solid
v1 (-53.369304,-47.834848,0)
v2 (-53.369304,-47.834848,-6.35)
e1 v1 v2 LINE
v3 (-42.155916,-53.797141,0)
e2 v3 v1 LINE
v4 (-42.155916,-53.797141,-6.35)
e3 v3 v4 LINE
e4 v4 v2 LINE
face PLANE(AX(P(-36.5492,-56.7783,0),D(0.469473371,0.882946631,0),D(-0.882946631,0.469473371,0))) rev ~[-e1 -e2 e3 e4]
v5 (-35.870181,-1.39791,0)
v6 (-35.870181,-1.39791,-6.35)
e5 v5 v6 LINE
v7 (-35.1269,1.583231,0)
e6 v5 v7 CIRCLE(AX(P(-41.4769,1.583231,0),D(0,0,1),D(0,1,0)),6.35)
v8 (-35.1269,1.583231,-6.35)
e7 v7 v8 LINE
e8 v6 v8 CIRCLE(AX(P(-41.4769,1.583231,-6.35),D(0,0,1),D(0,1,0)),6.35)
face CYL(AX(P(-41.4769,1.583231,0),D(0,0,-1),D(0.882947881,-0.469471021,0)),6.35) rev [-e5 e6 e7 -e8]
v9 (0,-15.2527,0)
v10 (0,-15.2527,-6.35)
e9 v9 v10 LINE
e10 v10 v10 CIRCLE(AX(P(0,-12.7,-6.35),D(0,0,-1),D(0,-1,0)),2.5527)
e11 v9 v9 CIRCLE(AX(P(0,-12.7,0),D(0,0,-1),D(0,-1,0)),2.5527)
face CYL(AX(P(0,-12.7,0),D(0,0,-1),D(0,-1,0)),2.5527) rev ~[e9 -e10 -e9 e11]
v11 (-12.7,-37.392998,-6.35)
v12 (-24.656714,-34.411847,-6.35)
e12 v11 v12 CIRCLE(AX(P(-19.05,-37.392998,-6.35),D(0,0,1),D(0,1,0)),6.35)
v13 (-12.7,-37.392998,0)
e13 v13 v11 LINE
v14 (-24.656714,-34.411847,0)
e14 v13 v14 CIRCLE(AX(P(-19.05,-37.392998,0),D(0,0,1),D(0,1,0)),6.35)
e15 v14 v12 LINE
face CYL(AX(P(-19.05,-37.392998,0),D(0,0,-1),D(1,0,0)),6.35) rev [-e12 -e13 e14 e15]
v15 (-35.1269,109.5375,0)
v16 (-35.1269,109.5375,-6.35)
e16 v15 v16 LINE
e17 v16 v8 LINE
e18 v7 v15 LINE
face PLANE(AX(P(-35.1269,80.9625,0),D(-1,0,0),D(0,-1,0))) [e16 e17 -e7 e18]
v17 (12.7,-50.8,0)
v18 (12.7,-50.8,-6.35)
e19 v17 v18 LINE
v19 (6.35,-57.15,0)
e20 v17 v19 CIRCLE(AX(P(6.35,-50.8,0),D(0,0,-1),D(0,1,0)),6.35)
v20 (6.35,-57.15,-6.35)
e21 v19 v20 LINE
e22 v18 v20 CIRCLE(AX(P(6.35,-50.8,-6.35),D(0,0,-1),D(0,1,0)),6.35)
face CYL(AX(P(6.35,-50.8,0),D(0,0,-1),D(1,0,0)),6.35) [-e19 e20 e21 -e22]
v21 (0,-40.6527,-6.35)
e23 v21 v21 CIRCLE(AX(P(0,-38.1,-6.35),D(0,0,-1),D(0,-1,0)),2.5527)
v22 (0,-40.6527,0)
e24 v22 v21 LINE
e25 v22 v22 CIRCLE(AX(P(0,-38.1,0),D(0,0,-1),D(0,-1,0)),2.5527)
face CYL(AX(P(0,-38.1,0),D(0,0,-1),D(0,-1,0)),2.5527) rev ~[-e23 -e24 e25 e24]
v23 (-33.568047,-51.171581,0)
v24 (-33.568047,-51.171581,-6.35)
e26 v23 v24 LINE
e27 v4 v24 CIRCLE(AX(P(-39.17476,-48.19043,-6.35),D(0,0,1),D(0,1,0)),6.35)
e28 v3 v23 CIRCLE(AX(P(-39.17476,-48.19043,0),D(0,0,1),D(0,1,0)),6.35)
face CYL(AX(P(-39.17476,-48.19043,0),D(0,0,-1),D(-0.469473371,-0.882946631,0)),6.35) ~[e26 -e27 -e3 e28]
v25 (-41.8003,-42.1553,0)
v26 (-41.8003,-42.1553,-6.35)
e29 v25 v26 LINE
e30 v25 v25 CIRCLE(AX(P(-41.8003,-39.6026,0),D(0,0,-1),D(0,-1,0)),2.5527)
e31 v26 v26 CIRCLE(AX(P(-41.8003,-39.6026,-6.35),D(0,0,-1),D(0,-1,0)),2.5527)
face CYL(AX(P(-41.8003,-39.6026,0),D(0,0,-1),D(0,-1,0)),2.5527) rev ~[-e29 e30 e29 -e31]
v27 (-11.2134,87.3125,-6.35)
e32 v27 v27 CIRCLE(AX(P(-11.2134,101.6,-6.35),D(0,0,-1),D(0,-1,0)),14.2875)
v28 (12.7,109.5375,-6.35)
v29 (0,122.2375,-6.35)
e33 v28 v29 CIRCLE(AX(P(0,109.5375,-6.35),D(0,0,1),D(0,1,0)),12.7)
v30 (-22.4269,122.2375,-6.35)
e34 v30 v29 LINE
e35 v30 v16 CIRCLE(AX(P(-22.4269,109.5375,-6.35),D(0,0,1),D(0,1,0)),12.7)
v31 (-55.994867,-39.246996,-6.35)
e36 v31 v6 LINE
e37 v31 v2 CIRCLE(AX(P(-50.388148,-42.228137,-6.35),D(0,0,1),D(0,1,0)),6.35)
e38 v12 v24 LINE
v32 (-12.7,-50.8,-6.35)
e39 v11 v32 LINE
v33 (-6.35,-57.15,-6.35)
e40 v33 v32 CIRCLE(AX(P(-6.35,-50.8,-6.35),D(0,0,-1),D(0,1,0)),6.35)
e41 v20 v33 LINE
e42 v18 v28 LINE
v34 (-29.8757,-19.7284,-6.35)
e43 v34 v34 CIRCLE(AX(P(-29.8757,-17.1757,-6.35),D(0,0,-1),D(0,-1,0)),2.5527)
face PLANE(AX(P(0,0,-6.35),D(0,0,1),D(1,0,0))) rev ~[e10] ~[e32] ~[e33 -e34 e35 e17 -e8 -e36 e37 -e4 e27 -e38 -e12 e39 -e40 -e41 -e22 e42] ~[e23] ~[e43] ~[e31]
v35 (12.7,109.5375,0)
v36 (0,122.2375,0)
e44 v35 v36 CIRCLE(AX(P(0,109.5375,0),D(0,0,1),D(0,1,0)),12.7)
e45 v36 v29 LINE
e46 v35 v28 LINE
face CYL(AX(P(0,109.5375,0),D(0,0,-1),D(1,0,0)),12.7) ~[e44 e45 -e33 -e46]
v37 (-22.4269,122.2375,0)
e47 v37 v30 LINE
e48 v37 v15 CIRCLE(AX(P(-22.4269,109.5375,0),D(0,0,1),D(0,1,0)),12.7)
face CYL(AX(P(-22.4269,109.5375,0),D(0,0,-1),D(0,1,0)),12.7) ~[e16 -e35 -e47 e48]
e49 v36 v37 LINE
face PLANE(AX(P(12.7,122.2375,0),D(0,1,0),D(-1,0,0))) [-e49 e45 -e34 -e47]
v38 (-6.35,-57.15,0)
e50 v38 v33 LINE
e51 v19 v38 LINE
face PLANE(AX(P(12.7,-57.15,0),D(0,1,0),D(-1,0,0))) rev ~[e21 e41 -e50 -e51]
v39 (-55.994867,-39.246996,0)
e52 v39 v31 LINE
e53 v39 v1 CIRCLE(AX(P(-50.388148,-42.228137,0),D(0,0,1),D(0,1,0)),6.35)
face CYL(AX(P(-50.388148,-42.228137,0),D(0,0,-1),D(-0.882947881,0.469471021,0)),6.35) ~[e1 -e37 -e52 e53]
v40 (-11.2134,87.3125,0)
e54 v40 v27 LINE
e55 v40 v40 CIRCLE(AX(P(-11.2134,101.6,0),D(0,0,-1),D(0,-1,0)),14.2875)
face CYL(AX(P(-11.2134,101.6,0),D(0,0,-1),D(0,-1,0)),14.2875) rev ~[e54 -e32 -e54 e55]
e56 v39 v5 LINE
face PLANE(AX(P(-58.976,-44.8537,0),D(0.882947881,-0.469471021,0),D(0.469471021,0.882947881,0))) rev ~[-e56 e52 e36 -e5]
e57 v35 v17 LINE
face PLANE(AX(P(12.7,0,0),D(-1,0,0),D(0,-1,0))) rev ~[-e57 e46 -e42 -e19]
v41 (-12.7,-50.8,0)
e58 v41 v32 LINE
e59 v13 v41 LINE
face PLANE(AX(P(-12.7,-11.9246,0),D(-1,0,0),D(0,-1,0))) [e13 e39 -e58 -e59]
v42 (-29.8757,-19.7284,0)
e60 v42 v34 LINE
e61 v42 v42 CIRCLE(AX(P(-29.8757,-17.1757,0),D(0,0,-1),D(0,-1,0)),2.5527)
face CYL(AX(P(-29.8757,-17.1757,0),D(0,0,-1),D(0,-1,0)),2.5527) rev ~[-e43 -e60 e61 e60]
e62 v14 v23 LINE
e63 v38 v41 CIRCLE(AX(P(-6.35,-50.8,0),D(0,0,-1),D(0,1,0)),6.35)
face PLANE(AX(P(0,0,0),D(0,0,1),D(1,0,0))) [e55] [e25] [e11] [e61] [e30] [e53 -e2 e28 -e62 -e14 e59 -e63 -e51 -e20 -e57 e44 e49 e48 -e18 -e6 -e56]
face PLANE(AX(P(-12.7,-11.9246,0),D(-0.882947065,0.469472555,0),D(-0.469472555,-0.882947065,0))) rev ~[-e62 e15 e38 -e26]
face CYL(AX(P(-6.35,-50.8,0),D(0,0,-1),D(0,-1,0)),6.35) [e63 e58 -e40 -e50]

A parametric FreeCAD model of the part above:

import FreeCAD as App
import Part
import Sketcher
from FreeCAD import Vector
Q = App.Units.Quantity


def edges_at(feature, points):
    """Names of the edges that pass closest to the given points."""
    edges = feature.Shape.Edges
    near = lambda p: min(range(len(edges)), key=lambda i: edges[i].distToShape(Part.Vertex(*p))[0])
    return sorted({f"Edge{near(p) + 1}" for p in points})

doc = App.newDocument("Part")
body = doc.addObject("PartDesign::Body", "Body")

sketch1 = doc.addObject("Sketcher::SketchObject", "Sketch")
body.addObject(sketch1)
sketch1.AttachmentSupport = (doc.XY_Plane, [""])
sketch1.MapMode = "FlatFace"
sketch1.addGeometry([
    Part.LineSegment(Vector(13, -57, 0), Vector(13, 0, 0)),
    Part.LineSegment(Vector(13, 0, 0), Vector(-35, 0, 0)),
    Part.LineSegment(Vector(-35, 0, 0), Vector(-59, -45, 0)),
    Part.LineSegment(Vector(-59, -45, 0), Vector(-37, -57, 0)),
    Part.LineSegment(Vector(-37, -57, 0), Vector(-13, -12, 0)),
    Part.LineSegment(Vector(-13, -12, 0), Vector(-13, -57, 0)),
    Part.LineSegment(Vector(-13, -57, 0), Vector(13, -57, 0)),
], False)
sketch1.addConstraint([
    Sketcher.Constraint("Coincident", 0, 2, 1, 1),
    Sketcher.Constraint("Coincident", 1, 2, 2, 1),
    Sketcher.Constraint("Coincident", 2, 2, 3, 1),
    Sketcher.Constraint("Coincident", 3, 2, 4, 1),
    Sketcher.Constraint("Coincident", 4, 2, 5, 1),
    Sketcher.Constraint("Coincident", 5, 2, 6, 1),
    Sketcher.Constraint("Coincident", 6, 2, 0, 1),
    Sketcher.Constraint("Vertical", 0),
    Sketcher.Constraint("Horizontal", 1),
    Sketcher.Constraint("Vertical", 5),
    Sketcher.Constraint("Horizontal", 6),
    Sketcher.Constraint("PointOnObject", 0, 2, -1),
    Sketcher.Constraint("Perpendicular", 2, 3),
    Sketcher.Constraint("Perpendicular", 3, 4),
    Sketcher.Constraint("Equal", 2, 4),
    Sketcher.Constraint("DistanceX", 6, 1, 6, 2, Q("1 in")),
    Sketcher.Constraint("Distance", 2, Q("2 in")),
    Sketcher.Constraint("Distance", 3, Q("1 in")),
    Sketcher.Constraint("Angle", 3, Q("-28 deg")),
    Sketcher.Constraint("DistanceY", 0, 1, 0, 2, Q("2.25 in")),
    Sketcher.Constraint("DistanceX", -1, 1, 0, 2, Q("0.5 in")),
])
pad1 = doc.addObject("PartDesign::Pad", "Pad")
body.addObject(pad1)
pad1.Profile = sketch1
pad1.Length = Q("0.25 in")
pad1.Reversed = True

sketch2 = doc.addObject("Sketcher::SketchObject", "Sketch001")
body.addObject(sketch2)
sketch2.AttachmentSupport = (doc.XY_Plane, [""])
sketch2.MapMode = "FlatFace"
sketch2.addGeometry([
    Part.Circle(Vector(-29.9, -17.2, 0), Vector(0, 0, 1), 2.6),
    Part.Circle(Vector(-41.8, -39.6, 0), Vector(0, 0, 1), 2.6),
    Part.Circle(Vector(0, -12.7, 0), Vector(0, 0, 1), 2.6),
    Part.Circle(Vector(0, -38.1, 0), Vector(0, 0, 1), 2.6),
], False)
sketch2.addConstraint([
    Sketcher.Constraint("Equal", 0, 1),
    Sketcher.Constraint("Equal", 1, 2),
    Sketcher.Constraint("Equal", 2, 3),
    Sketcher.Constraint("PointOnObject", 2, 3, -2),
    Sketcher.Constraint("PointOnObject", 3, 3, -2),
    Sketcher.Constraint("Diameter", 0, Q("0.201 in")),
    Sketcher.Constraint("DistanceY", 3, 3, 2, 3, Q("1 in")),
    Sketcher.Constraint("DistanceY", 2, 3, -1, 1, Q("0.5 in")),
    Sketcher.Constraint("DistanceX", 0, 3, -1, 1, Q("1.1762 in")),
    Sketcher.Constraint("DistanceY", 0, 3, -1, 1, Q("0.6762 in")),
    Sketcher.Constraint("DistanceX", 1, 3, -1, 1, Q("41.8003 mm")),
    Sketcher.Constraint("DistanceY", 1, 3, -1, 1, Q("39.6026 mm")),
])
doc.recompute()
hole = doc.addObject("PartDesign::Hole", "Hole")
body.addObject(hole)
hole.Profile = sketch2
hole.ThreadType = "None"
hole.Diameter = Q("0.201 in")
hole.DepthType = "ThroughAll"

sketch3 = doc.addObject("Sketcher::SketchObject", "Sketch002")
body.addObject(sketch3)
sketch3.AttachmentSupport = (doc.XY_Plane, [""])
sketch3.MapMode = "FlatFace"
sketch3.addGeometry([
    Part.LineSegment(Vector(-35, 0, 0), Vector(13, 0, 0)),
    Part.LineSegment(Vector(13, 0, 0), Vector(13, 122, 0)),
    Part.LineSegment(Vector(13, 122, 0), Vector(-35, 122, 0)),
    Part.LineSegment(Vector(-35, 122, 0), Vector(-35, 0, 0)),
], False)
sketch3.addConstraint([
    Sketcher.Constraint("Coincident", 0, 2, 1, 1),
    Sketcher.Constraint("Coincident", 1, 2, 2, 1),
    Sketcher.Constraint("Coincident", 2, 2, 3, 1),
    Sketcher.Constraint("Coincident", 3, 2, 0, 1),
    Sketcher.Constraint("Horizontal", 0),
    Sketcher.Constraint("Vertical", 1),
    Sketcher.Constraint("Horizontal", 2),
    Sketcher.Constraint("Vertical", 3),
    Sketcher.Constraint("PointOnObject", 0, 2, -1),
    Sketcher.Constraint("DistanceX", -1, 1, 0, 2, Q("0.5 in")),
    Sketcher.Constraint("DistanceY", 1, 1, 1, 2, Q("4.8125 in")),
    Sketcher.Constraint("DistanceX", 0, 1, 0, 2, Q("47.827 mm")),
])
pad2 = doc.addObject("PartDesign::Pad", "Pad001")
body.addObject(pad2)
pad2.Profile = sketch3
pad2.Length = Q("0.25 in")
pad2.Reversed = True
doc.recompute()

fillet = doc.addObject("PartDesign::Fillet", "Fillet")
body.addObject(fillet)
fillet.Base = (pad2, edges_at(pad2, [
    (12.7, -57.15, -3.175),
    (-12.7, -57.15, -3.175),
    (-12.7, -11.925, -3.175),
    (-36.549, -56.778, -3.175),
    (-58.976, -44.854, -3.175),
    (-35.127, 0, -3.175),
]))
fillet.Radius = Q("0.25 in")

sketch4 = doc.addObject("Sketcher::SketchObject", "Sketch003")
body.addObject(sketch4)
sketch4.AttachmentSupport = (doc.XY_Plane, [""])
sketch4.MapMode = "FlatFace"
sketch4.addGeometry(Part.Circle(Vector(-11, 102, 0), Vector(0, 0, 1), 14), False)
sketch4.addConstraint([
    Sketcher.Constraint("Diameter", 0, Q("1.125 in")),
    Sketcher.Constraint("DistanceY", -1, 1, 0, 3, Q("4 in")),
    Sketcher.Constraint("DistanceX", 0, 3, -1, 1, Q("11.2134 mm")),
])
doc.recompute()
hole2 = doc.addObject("PartDesign::Hole", "Hole001")
body.addObject(hole2)
hole2.Profile = sketch4
hole2.ThreadType = "None"
hole2.Diameter = Q("1.125 in")
hole2.DepthType = "ThroughAll"
doc.recompute()

fillet2 = doc.addObject("PartDesign::Fillet", "Fillet001")
body.addObject(fillet2)
fillet2.Base = (hole2, edges_at(hole2, [(12.7, 122.237, -3.175), (-35.127, 122.237, -3.175)]))
fillet2.Radius = Q("0.5 in")

doc.recompute()
